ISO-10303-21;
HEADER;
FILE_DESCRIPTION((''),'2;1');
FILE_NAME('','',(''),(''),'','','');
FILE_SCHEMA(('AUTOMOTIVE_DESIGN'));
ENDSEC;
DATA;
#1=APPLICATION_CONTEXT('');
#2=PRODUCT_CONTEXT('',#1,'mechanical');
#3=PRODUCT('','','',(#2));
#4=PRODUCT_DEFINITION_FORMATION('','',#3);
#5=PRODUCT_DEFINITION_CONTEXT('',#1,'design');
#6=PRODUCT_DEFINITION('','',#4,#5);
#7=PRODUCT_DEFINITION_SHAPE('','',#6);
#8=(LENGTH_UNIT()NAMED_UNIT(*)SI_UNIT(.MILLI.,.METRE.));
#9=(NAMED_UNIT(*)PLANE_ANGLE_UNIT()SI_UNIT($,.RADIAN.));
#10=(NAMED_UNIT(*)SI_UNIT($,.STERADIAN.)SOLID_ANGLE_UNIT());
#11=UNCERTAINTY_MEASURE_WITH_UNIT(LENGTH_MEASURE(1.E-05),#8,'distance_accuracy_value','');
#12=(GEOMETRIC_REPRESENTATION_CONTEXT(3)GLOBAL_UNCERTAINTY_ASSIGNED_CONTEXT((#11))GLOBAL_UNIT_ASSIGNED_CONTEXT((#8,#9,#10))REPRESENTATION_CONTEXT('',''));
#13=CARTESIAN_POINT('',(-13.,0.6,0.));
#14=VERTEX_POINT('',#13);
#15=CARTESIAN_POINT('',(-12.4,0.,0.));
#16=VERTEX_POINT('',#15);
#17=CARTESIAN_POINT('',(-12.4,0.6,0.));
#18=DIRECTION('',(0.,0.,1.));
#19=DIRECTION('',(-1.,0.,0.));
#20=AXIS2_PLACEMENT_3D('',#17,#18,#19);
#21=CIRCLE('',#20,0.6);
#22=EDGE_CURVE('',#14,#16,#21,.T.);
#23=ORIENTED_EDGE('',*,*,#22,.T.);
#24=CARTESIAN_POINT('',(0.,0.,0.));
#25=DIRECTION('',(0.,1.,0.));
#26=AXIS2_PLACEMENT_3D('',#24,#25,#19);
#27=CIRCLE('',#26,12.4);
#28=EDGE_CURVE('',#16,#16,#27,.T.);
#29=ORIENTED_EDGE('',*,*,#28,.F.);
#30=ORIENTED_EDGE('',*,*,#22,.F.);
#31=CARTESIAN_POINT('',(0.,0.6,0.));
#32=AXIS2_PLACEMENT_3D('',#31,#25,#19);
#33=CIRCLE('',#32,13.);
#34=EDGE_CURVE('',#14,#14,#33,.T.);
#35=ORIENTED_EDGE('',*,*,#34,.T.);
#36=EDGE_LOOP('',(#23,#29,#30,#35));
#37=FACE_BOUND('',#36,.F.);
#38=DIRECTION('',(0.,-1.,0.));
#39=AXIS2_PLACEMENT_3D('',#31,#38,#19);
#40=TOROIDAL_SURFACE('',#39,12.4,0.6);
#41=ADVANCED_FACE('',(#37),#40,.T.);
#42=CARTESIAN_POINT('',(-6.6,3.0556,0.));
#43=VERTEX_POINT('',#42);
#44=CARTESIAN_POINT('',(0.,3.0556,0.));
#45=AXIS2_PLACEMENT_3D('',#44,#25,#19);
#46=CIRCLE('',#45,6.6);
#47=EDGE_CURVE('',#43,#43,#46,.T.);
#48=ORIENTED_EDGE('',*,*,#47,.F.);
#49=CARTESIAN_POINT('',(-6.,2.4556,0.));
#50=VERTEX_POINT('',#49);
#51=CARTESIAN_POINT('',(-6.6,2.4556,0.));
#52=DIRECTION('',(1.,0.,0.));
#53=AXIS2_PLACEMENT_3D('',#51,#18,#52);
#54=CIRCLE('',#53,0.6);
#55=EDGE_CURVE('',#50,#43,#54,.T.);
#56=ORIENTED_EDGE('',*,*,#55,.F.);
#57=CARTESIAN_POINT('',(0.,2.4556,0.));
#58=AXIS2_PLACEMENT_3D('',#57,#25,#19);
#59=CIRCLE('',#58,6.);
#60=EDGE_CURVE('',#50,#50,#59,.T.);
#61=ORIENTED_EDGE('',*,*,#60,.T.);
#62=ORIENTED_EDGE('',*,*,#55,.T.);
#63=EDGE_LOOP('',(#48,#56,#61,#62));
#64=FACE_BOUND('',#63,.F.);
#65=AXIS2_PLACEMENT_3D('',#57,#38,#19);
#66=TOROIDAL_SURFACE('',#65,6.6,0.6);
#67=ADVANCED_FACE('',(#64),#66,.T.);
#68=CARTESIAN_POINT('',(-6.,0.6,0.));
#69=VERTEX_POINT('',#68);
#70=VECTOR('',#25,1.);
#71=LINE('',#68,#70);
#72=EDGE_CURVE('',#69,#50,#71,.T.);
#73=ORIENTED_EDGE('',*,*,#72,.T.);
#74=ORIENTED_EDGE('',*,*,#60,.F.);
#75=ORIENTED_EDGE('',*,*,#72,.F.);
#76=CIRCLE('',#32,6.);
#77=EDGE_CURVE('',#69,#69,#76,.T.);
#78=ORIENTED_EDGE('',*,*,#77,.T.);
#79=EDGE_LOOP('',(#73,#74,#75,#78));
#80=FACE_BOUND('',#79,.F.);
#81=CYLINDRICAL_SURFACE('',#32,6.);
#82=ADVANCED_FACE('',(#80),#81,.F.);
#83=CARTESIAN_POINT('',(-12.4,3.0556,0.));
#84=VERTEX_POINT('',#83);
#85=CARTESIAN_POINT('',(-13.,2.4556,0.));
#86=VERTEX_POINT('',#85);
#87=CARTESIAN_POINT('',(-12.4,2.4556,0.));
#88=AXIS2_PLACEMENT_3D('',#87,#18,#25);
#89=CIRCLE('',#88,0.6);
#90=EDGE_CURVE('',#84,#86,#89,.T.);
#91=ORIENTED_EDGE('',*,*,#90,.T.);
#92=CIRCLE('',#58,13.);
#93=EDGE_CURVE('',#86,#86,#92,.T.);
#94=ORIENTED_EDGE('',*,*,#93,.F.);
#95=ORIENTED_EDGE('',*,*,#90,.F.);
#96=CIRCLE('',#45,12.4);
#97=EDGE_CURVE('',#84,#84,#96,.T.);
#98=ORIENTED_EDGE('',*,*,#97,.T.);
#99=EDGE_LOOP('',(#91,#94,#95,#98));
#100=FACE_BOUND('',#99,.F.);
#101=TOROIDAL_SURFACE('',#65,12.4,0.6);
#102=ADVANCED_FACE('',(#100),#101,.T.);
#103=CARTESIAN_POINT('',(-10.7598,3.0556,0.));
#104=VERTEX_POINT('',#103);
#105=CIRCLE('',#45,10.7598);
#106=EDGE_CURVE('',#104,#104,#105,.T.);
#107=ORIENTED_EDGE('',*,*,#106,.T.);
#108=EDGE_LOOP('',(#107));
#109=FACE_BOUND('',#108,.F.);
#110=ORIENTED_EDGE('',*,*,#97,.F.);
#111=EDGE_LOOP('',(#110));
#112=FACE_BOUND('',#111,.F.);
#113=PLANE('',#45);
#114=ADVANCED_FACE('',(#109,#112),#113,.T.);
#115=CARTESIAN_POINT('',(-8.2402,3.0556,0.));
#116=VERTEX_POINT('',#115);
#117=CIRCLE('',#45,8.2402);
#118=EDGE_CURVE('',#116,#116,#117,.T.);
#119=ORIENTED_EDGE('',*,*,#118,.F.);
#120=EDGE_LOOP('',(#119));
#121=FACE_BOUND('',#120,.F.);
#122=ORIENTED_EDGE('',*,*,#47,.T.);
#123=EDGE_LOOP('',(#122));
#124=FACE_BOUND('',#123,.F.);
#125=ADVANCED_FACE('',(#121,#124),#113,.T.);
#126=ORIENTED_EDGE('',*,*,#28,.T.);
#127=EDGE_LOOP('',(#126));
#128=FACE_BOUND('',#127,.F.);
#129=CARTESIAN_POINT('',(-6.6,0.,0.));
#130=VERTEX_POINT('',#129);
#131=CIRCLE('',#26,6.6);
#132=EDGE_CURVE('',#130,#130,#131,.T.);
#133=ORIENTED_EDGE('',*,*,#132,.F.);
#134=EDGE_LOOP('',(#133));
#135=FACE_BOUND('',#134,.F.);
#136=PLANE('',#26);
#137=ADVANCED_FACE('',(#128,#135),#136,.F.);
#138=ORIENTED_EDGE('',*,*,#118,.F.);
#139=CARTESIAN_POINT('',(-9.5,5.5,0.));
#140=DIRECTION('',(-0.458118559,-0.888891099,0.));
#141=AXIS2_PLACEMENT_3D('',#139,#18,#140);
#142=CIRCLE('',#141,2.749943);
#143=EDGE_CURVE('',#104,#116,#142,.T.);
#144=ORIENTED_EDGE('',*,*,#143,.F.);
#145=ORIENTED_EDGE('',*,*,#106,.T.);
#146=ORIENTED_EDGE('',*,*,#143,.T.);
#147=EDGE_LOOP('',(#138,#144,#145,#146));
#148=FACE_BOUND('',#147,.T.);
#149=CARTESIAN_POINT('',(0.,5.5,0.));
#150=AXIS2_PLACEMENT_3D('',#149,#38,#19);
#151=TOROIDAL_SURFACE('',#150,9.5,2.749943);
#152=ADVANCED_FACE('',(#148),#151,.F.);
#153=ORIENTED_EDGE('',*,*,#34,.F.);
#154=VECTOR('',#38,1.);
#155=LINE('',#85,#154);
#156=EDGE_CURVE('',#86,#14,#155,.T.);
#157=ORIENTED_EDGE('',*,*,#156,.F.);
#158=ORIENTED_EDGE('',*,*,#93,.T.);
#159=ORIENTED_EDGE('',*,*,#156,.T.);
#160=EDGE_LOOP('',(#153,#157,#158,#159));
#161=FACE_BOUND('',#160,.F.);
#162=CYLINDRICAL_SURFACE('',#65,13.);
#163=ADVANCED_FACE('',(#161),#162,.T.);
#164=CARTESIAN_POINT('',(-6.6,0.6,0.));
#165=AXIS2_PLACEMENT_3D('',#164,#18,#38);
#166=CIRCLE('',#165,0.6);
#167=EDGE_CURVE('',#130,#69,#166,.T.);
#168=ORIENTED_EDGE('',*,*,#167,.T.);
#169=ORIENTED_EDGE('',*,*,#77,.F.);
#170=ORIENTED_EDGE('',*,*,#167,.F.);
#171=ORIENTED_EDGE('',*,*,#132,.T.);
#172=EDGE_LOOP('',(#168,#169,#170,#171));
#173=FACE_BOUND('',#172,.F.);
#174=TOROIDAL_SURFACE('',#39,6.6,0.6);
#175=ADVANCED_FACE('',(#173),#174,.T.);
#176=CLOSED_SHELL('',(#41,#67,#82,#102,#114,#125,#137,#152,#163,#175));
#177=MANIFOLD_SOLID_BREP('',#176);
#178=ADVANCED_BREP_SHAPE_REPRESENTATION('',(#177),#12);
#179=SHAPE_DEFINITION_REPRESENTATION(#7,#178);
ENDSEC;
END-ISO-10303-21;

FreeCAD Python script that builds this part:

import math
import FreeCAD as App
import Part
import Sketcher

V = App.Vector
Q = App.Units.Quantity

doc = App.newDocument("Part")
params = doc.addObject("Spreadsheet::Sheet", "Params")
for row, (alias, value) in enumerate([
    ("sketch1_radius", "0.6 mm"),
    ("sketch1_radius2", "2.75 mm"),
    ("sketch1_width", "5.8 mm"),
    ("revolution_angle", "360 deg"),
], start=1):
    params.set(f"A{row}", alias)
    params.set(f"B{row}", "=" + value)
    params.setAlias(f"B{row}", alias)

body = doc.addObject("PartDesign::Body", "Body")

sketch1 = body.newObject("Sketcher::SketchObject", "Sketch")
sketch1.AttachmentSupport = (doc.getObject("XY_Plane"), [""])
sketch1.MapMode = "FlatFace"
sketch1.addGeometry([
    Part.LineSegment(V(-12.4, 0, 0), V(-6.6, 0, 0)),
    Part.ArcOfCircle(Part.Circle(V(-6.6, 0.6, 0), V(0, 0, 1), 0.6), math.radians(-90), math.radians(0)),
    Part.LineSegment(V(-6, 0.6, 0), V(-6, 2.4556, 0)),
    Part.ArcOfCircle(Part.Circle(V(-6.6, 2.4556, 0), V(0, 0, 1), 0.6), math.radians(0), math.radians(90)),
    Part.LineSegment(V(-6.6, 3.0556, 0), V(-8.2402, 3.0556, 0)),
    Part.ArcOfCircle(Part.Circle(V(-9.5, 5.5, 0), V(0, 0, 1), 2.749943), math.radians(-117.265768), math.radians(-62.734232)),
    Part.LineSegment(V(-10.7598, 3.0556, 0), V(-12.4, 3.0556, 0)),
    Part.ArcOfCircle(Part.Circle(V(-12.4, 2.4556, 0), V(0, 0, 1), 0.6), math.radians(90), math.radians(180)),
    Part.LineSegment(V(-13, 2.4556, 0), V(-13, 0.6, 0)),
    Part.ArcOfCircle(Part.Circle(V(-12.4, 0.6, 0), V(0, 0, 1), 0.6), math.radians(180), math.radians(270)),
], False)
sketch1.addConstraint([
    Sketcher.Constraint("Tangent", 0, 2, 1, 1),
    Sketcher.Constraint("Tangent", 1, 2, 2, 1),
    Sketcher.Constraint("Tangent", 2, 2, 3, 1),
    Sketcher.Constraint("Tangent", 3, 2, 4, 1),
    Sketcher.Constraint("Coincident", 4, 2, 5, 2),
    Sketcher.Constraint("Coincident", 5, 1, 6, 1),
    Sketcher.Constraint("Tangent", 6, 2, 7, 1),
    Sketcher.Constraint("Tangent", 7, 2, 8, 1),
    Sketcher.Constraint("Tangent", 8, 2, 9, 1),
    Sketcher.Constraint("Tangent", 9, 2, 0, 1),
    Sketcher.Constraint("Horizontal", 0),
    Sketcher.Constraint("Vertical", 2),
    Sketcher.Constraint("Horizontal", 4),
    Sketcher.Constraint("Horizontal", 6),
    Sketcher.Constraint("Vertical", 8),
    Sketcher.Constraint("Equal", 1, 3),
    Sketcher.Constraint("Equal", 3, 7),
    Sketcher.Constraint("Equal", 7, 9),
    Sketcher.Constraint("PointOnObject", 0, 2, -1),
    Sketcher.Constraint("Horizontal", 3, 3, 7, 3),
    Sketcher.Constraint("Equal", 4, 6),
    Sketcher.Constraint("Radius", 1, Q("0.6 mm")),
    Sketcher.Constraint("Radius", 5, Q("2.75 mm")),
    Sketcher.Constraint("DistanceX", 0, 1, 0, 2, Q("5.8 mm")),
    Sketcher.Constraint("DistanceX", 1, 2, -1, 1, Q("6 mm")),
    Sketcher.Constraint("DistanceY", -1, 1, 5, 3, Q("5.5 mm")),
    Sketcher.Constraint("DistanceX", 4, 2, 4, 1, Q("1.6402 mm")),
])
sketch1.setExpression("Constraints[21]", "Params.sketch1_radius")
sketch1.setExpression("Constraints[22]", "Params.sketch1_radius2")
sketch1.setExpression("Constraints[23]", "Params.sketch1_width")
revolution = body.newObject("PartDesign::Revolution", "Revolution")
revolution.Profile = sketch1
revolution.ReferenceAxis = (sketch1, ["V_Axis"])
revolution.setExpression("Angle", "Params.revolution_angle")

doc.recompute()
